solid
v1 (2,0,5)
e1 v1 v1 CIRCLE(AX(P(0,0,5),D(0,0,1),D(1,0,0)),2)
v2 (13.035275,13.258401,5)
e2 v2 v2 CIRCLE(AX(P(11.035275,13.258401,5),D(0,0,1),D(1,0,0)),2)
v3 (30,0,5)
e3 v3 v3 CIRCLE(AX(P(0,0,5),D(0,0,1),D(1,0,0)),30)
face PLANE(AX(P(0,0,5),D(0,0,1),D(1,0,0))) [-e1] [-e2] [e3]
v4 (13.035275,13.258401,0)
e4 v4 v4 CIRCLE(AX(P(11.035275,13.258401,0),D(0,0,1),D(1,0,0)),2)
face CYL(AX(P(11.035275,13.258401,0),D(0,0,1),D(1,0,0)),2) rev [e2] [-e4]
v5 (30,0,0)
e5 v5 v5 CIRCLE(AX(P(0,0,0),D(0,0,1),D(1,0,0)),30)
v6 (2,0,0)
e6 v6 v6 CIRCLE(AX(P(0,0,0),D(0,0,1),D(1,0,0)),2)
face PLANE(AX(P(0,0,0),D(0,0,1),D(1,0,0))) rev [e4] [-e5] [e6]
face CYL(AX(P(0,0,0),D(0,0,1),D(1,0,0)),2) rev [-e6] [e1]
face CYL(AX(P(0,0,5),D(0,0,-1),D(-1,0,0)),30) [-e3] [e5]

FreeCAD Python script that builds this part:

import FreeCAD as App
import Part
import Sketcher

doc = App.newDocument("Part")
params = doc.addObject("Spreadsheet::Sheet", "Params")
for row, (alias, value) in enumerate([
    ("sketch1_diameter", "60 mm"),
    ("pad1_length", "5 mm"),
    ("sketch2_diameter", "4 mm"),
    ("pocket1_length", "5 mm"),
], start=1):
    params.set(f"A{row}", alias)
    params.set(f"B{row}", "=" + value)
    params.setAlias(f"B{row}", alias)

body = doc.addObject("PartDesign::Body", "Body")

# Sketch on XY plane
sketch1 = body.newObject("Sketcher::SketchObject", "Sketch")
sketch1.AttachmentSupport = (doc.getObject("XY_Plane"), [""])
sketch1.MapMode = "FlatFace"
sketch1.addGeometry(Part.Circle(App.Vector(0, 0, 0), App.Vector(0, 0, 1), 30), False)
sketch1.addConstraint([
    Sketcher.Constraint("Coincident", 0, 3, -1, 1),
    Sketcher.Constraint("Diameter", 0, 60.0),
])
sketch1.setExpression("Constraints[1]", "Params.sketch1_diameter")
pad1 = body.newObject("PartDesign::Pad", "Pad")
pad1.Profile = sketch1
pad1.setExpression("Length", "Params.pad1_length")

# Sketch on XY plane
sketch2 = body.newObject("Sketcher::SketchObject", "Sketch001")
sketch2.AttachmentSupport = (doc.getObject("XY_Plane"), [""])
sketch2.MapMode = "FlatFace"
sketch2.AttachmentOffset = App.Placement(App.Vector(0, 0, 5), App.Rotation())
sketch2.addGeometry([
    Part.Circle(App.Vector(0, 0, 0), App.Vector(0, 0, 1), 2),
    Part.Circle(App.Vector(11, 13.3, 0), App.Vector(0, 0, 1), 2),
], False)
sketch2.addConstraint([
    Sketcher.Constraint("Coincident", 0, 3, -1, 1),
    Sketcher.Constraint("Equal", 0, 1),
    Sketcher.Constraint("Diameter", 0, 4.0),
    Sketcher.Constraint("DistanceY", -1, 1, 1, 3, 13.258401),
    Sketcher.Constraint("DistanceX", -1, 1, 1, 3, 11.035275),
])
sketch2.setExpression("Constraints[2]", "Params.sketch2_diameter")
pocket1 = body.newObject("PartDesign::Pocket", "Pocket")
pocket1.Profile = sketch2
pocket1.setExpression("Length", "Params.pocket1_length")

doc.recompute()
